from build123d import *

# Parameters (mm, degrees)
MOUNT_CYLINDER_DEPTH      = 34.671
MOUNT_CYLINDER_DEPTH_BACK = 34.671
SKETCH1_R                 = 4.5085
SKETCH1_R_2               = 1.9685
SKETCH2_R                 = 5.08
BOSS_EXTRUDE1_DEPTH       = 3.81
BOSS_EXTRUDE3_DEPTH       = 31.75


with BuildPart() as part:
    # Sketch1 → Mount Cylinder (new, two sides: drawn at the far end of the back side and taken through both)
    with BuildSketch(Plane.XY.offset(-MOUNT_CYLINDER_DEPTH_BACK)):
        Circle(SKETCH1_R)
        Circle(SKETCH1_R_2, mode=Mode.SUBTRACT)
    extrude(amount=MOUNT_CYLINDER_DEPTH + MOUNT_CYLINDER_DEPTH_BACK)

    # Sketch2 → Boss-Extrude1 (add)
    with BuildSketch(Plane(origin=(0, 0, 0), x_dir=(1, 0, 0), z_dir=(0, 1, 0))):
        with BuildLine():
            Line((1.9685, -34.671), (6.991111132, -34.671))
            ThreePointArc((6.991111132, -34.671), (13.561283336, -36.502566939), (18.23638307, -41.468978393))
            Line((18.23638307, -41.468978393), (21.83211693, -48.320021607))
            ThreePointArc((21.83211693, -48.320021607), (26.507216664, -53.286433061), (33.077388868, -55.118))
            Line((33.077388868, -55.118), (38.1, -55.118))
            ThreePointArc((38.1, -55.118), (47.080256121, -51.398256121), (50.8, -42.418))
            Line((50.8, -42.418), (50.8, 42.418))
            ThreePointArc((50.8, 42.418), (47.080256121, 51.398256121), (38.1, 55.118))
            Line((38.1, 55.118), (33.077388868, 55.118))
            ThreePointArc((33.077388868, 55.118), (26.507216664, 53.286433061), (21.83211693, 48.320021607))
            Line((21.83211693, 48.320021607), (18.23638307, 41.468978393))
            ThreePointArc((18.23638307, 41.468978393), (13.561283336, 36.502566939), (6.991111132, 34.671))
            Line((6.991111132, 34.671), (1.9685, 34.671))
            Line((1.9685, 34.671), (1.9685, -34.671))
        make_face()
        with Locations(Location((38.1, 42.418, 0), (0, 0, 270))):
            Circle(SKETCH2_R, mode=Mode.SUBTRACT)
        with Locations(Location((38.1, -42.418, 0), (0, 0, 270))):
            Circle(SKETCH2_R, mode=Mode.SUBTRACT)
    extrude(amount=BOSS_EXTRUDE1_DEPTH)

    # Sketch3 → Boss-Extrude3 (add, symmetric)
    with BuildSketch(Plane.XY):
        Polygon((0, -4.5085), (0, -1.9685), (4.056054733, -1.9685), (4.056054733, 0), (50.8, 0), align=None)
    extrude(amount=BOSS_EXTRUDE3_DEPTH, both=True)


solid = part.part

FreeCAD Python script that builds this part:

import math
import FreeCAD as App
import Part
import Sketcher
from FreeCAD import Vector
Q = App.Units.Quantity

doc = App.newDocument("Part")
body = doc.addObject("PartDesign::Body", "Body")

sketch1 = body.newObject("Sketcher::SketchObject", "Sketch")
sketch1.AttachmentSupport = (doc.getObject("XY_Plane"), [""])
sketch1.MapMode = "FlatFace"
sketch1.addGeometry([
    Part.Circle(Vector(0, 0, 0), Vector(0, 0, 1), 4.5),
    Part.Circle(Vector(0, 0, 0), Vector(0, 0, 1), 2),
], False)
sketch1.addConstraint([
    Sketcher.Constraint("Coincident", 0, 3, -1, 1),
    Sketcher.Constraint("Coincident", 1, 3, -1, 1),
    Sketcher.Constraint("Diameter", 0, Q("0.355 in")),
    Sketcher.Constraint("Diameter", 1, Q("0.155 in")),
])
pad1 = body.newObject("PartDesign::Pad", "Pad")
pad1.Profile = sketch1
pad1.Type = "TwoLengths"
pad1.Length = Q("1.365 in")
pad1.Length2 = Q("1.365 in")

sketch2 = body.newObject("Sketcher::SketchObject", "Sketch001")
sketch2.AttachmentSupport = (doc.getObject("XZ_Plane"), [""])
sketch2.MapMode = "FlatFace"
sketch2.addGeometry([
    Part.LineSegment(Vector(2, 35, 0), Vector(7, 35, 0)),
    Part.ArcOfCircle(Part.Circle(Vector(7, 47, 0), Vector(0, 0, 1), 13), math.radians(-90), math.radians(-28)),
    Part.LineSegment(Vector(18, 41, 0), Vector(22, 48, 0)),
    Part.ArcOfCircle(Part.Circle(Vector(33, 42, 0), Vector(0, 0, 1), 13), math.radians(90), math.radians(152)),
    Part.LineSegment(Vector(33, 55, 0), Vector(38, 55, 0)),
    Part.ArcOfCircle(Part.Circle(Vector(38, 42, 0), Vector(0, 0, 1), 13), math.radians(0), math.radians(90)),
    Part.LineSegment(Vector(51, 42, 0), Vector(51, -42, 0)),
    Part.ArcOfCircle(Part.Circle(Vector(38, -42, 0), Vector(0, 0, 1), 13), math.radians(-90), math.radians(0)),
    Part.LineSegment(Vector(38, -55, 0), Vector(33, -55, 0)),
    Part.ArcOfCircle(Part.Circle(Vector(33, -42, 0), Vector(0, 0, 1), 13), math.radians(-152), math.radians(-90)),
    Part.LineSegment(Vector(22, -48, 0), Vector(18, -41, 0)),
    Part.ArcOfCircle(Part.Circle(Vector(7, -47, 0), Vector(0, 0, 1), 13), math.radians(28), math.radians(90)),
    Part.LineSegment(Vector(7, -35, 0), Vector(2, -35, 0)),
    Part.LineSegment(Vector(2, -35, 0), Vector(2, 35, 0)),
    Part.Circle(Vector(38, 42, 0), Vector(0, 0, 1), 5),
    Part.Circle(Vector(38, -42, 0), Vector(0, 0, 1), 5),
], False)
sketch2.addConstraint([
    Sketcher.Constraint("Tangent", 0, 2, 1, 1),
    Sketcher.Constraint("Tangent", 1, 2, 2, 1),
    Sketcher.Constraint("Tangent", 2, 2, 3, 2),
    Sketcher.Constraint("Tangent", 3, 1, 4, 1),
    Sketcher.Constraint("Tangent", 4, 2, 5, 2),
    Sketcher.Constraint("Tangent", 5, 1, 6, 1),
    Sketcher.Constraint("Tangent", 6, 2, 7, 2),
    Sketcher.Constraint("Tangent", 7, 1, 8, 1),
    Sketcher.Constraint("Tangent", 8, 2, 9, 2),
    Sketcher.Constraint("Tangent", 9, 1, 10, 1),
    Sketcher.Constraint("Tangent", 10, 2, 11, 1),
    Sketcher.Constraint("Tangent", 11, 2, 12, 1),
    Sketcher.Constraint("Coincident", 12, 2, 13, 1),
    Sketcher.Constraint("Coincident", 13, 2, 0, 1),
    Sketcher.Constraint("Horizontal", 0),
    Sketcher.Constraint("Horizontal", 4),
    Sketcher.Constraint("Vertical", 6),
    Sketcher.Constraint("Horizontal", 8),
    Sketcher.Constraint("Horizontal", 12),
    Sketcher.Constraint("Vertical", 13),
    Sketcher.Constraint("Coincident", 14, 3, 5, 3),
    Sketcher.Constraint("Coincident", 15, 3, 7, 3),
    Sketcher.Constraint("Equal", 1, 3),
    Sketcher.Constraint("Equal", 3, 5),
    Sketcher.Constraint("Equal", 5, 7),
    Sketcher.Constraint("Equal", 7, 9),
    Sketcher.Constraint("Equal", 9, 11),
    Sketcher.Constraint("Equal", 14, 15),
    Sketcher.Constraint("Symmetric", 3, 3, 9, 3, -1),
    Sketcher.Constraint("Symmetric", 1, 3, 11, 3, -1),
    Sketcher.Constraint("Equal", 0, 4),
    Sketcher.Constraint("Diameter", 14, Q("0.4 in")),
    Sketcher.Constraint("Radius", 1, Q("0.5 in")),
    Sketcher.Constraint("DistanceX", -1, 1, 5, 1, Q("2 in")),
    Sketcher.Constraint("DistanceY", 6, 2, 6, 1, Q("3.34 in")),
    Sketcher.Constraint("DistanceY", 13, 1, 13, 2, Q("2.73 in")),
    Sketcher.Constraint("DistanceX", -1, 1, 12, 2, Q("0.0775 in")),
    Sketcher.Constraint("DistanceX", 0, 1, 0, 2, Q("5.022611 mm")),
])
pad2 = body.newObject("PartDesign::Pad", "Pad001")
pad2.Profile = sketch2
pad2.Length = Q("0.15 in")
pad2.Reversed = True

sketch3 = body.newObject("Sketcher::SketchObject", "Sketch002")
sketch3.AttachmentSupport = (doc.getObject("XY_Plane"), [""])
sketch3.MapMode = "FlatFace"
sketch3.addGeometry([
    Part.LineSegment(Vector(0, -2, 0), Vector(0, -4.5, 0)),
    Part.LineSegment(Vector(0, -4.5, 0), Vector(50.8, 0, 0)),
    Part.LineSegment(Vector(50.8, 0, 0), Vector(4.1, 0, 0)),
    Part.LineSegment(Vector(4.1, 0, 0), Vector(4.1, -2, 0)),
    Part.LineSegment(Vector(4.1, -2, 0), Vector(0, -2, 0)),
], False)
sketch3.addConstraint([
    Sketcher.Constraint("Coincident", 0, 2, 1, 1),
    Sketcher.Constraint("Coincident", 1, 2, 2, 1),
    Sketcher.Constraint("Coincident", 2, 2, 3, 1),
    Sketcher.Constraint("Coincident", 3, 2, 4, 1),
    Sketcher.Constraint("Coincident", 4, 2, 0, 1),
    Sketcher.Constraint("Vertical", 0),
    Sketcher.Constraint("Horizontal", 2),
    Sketcher.Constraint("Vertical", 3),
    Sketcher.Constraint("Horizontal", 4),
    Sketcher.Constraint("PointOnObject", 0, 2, -2),
    Sketcher.Constraint("PointOnObject", 1, 2, -1),
    Sketcher.Constraint("DistanceY", 0, 2, 0, 1, Q("0.1 in")),
    Sketcher.Constraint("DistanceX", -1, 1, 1, 2, Q("2 in")),
    Sketcher.Constraint("DistanceY", 3, 2, 3, 1, Q("0.0775 in")),
    Sketcher.Constraint("DistanceX", 2, 2, 2, 1, Q("46.743945 mm")),
])
pad3 = body.newObject("PartDesign::Pad", "Pad002")
pad3.Profile = sketch3
pad3.Length = Q("2.5 in")
pad3.Midplane = True

doc.recompute()
